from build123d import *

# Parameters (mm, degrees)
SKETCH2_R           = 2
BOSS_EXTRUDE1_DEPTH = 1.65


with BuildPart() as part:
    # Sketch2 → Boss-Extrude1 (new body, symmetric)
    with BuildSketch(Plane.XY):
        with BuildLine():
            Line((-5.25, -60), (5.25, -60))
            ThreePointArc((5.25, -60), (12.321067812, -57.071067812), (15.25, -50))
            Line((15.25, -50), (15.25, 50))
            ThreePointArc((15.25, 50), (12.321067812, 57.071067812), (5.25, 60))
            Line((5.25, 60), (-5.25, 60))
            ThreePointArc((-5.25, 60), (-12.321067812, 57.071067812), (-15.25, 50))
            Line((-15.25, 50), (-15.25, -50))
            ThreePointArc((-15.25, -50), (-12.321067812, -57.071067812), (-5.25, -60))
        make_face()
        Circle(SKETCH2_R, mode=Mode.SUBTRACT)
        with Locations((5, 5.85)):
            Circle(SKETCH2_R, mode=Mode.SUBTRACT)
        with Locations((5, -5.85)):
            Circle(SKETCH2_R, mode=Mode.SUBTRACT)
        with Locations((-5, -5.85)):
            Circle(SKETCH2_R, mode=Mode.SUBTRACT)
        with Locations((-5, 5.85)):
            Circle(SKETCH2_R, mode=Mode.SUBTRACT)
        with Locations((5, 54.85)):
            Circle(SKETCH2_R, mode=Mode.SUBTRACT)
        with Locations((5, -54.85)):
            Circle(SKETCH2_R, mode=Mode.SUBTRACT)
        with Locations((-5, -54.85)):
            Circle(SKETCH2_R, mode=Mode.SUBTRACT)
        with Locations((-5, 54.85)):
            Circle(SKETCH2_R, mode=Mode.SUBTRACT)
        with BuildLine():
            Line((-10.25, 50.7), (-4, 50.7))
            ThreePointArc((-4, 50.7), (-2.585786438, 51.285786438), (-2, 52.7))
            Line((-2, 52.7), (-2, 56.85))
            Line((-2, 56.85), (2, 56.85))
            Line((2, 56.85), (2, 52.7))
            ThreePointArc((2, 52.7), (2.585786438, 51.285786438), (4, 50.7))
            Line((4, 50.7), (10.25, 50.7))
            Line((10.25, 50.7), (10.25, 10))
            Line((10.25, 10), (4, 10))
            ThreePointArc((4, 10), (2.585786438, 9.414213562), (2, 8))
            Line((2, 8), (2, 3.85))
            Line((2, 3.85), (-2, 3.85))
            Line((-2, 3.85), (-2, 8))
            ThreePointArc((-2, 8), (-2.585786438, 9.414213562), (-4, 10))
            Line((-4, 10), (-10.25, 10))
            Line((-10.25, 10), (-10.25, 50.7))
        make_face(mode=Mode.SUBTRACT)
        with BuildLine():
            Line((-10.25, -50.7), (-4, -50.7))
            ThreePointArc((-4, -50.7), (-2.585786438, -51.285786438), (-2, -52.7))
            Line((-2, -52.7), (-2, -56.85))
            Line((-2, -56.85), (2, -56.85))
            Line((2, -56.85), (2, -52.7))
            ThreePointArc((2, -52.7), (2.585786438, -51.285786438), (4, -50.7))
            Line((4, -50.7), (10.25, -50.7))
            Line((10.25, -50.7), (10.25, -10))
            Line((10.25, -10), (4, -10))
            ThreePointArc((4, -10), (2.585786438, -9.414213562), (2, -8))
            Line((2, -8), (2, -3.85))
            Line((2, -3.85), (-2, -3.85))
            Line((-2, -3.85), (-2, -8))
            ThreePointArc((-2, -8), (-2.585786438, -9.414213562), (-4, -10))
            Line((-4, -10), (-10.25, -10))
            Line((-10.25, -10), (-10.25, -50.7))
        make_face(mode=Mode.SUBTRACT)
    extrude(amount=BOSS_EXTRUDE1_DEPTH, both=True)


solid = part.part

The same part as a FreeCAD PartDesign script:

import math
import FreeCAD as App
import Part
import Sketcher

V = App.Vector

doc = App.newDocument("Part")
params = doc.addObject("Spreadsheet::Sheet", "Params")
for row, (alias, value) in enumerate([
    ("sketch1_diameter", "4 mm"),
    ("sketch1_radius", "10 mm"),
    ("sketch1_width", "4 mm"),
    ("sketch1_height", "100 mm"),
    ("sketch1_width2", "10.5 mm"),
    ("pad1_length", "3.3 mm"),
], start=1):
    params.set(f"A{row}", alias)
    params.set(f"B{row}", "=" + value)
    params.setAlias(f"B{row}", alias)

body = doc.addObject("PartDesign::Body", "Body")

# Sketch on XY plane
sketch1 = body.newObject("Sketcher::SketchObject", "Sketch")
sketch1.AttachmentSupport = (doc.getObject("XY_Plane"), [""])
sketch1.MapMode = "FlatFace"
sketch1.addGeometry(Part.LineSegment(V(-5.25, -60, 0), V(5.25, -60, 0)), False)
sketch1.addGeometry(Part.ArcOfCircle(Part.Circle(V(5.25, -50, 0), V(0, 0, 1), 10), math.radians(-90), math.radians(0)), False)
sketch1.addGeometry(Part.LineSegment(V(15.25, -50, 0), V(15.25, 50, 0)), False)
sketch1.addGeometry(Part.ArcOfCircle(Part.Circle(V(5.25, 50, 0), V(0, 0, 1), 10), math.radians(0), math.radians(90)), False)
sketch1.addGeometry(Part.LineSegment(V(5.25, 60, 0), V(-5.25, 60, 0)), False)
sketch1.addGeometry(Part.ArcOfCircle(Part.Circle(V(-5.25, 50, 0), V(0, 0, 1), 10), math.radians(90), math.radians(180)), False)
sketch1.addGeometry(Part.LineSegment(V(-15.25, 50, 0), V(-15.25, -50, 0)), False)
sketch1.addGeometry(Part.ArcOfCircle(Part.Circle(V(-5.25, -50, 0), V(0, 0, 1), 10), math.radians(180), math.radians(270)), False)
sketch1.addGeometry(Part.Circle(V(-5, -54.85, 0), V(0, 0, 1), 2), False)
sketch1.addGeometry(Part.Circle(V(-5, -5.85, 0), V(0, 0, 1), 2), False)
sketch1.addGeometry(Part.Circle(V(5, -54.85, 0), V(0, 0, 1), 2), False)
sketch1.addGeometry(Part.LineSegment(V(-4, -50.7, 0), V(-10.25, -50.7, 0)), False)
sketch1.addGeometry(Part.LineSegment(V(-10.25, -50.7, 0), V(-10.25, -10, 0)), False)
sketch1.addGeometry(Part.LineSegment(V(-10.25, -10, 0), V(-4, -10, 0)), False)
sketch1.addGeometry(Part.ArcOfCircle(Part.Circle(V(-4, -8, 0), V(0, 0, 1), 2), math.radians(-90), math.radians(0)), False)
sketch1.addGeometry(Part.LineSegment(V(-2, -8, 0), V(-2, -3.85, 0)), False)
sketch1.addGeometry(Part.LineSegment(V(-2, -3.85, 0), V(2, -3.85, 0)), False)
sketch1.addGeometry(Part.LineSegment(V(2, -3.85, 0), V(2, -8, 0)), False)
sketch1.addGeometry(Part.ArcOfCircle(Part.Circle(V(4, -8, 0), V(0, 0, 1), 2), math.radians(-180), math.radians(-90)), False)
sketch1.addGeometry(Part.LineSegment(V(4, -10, 0), V(10.25, -10, 0)), False)
sketch1.addGeometry(Part.LineSegment(V(10.25, -10, 0), V(10.25, -50.7, 0)), False)
sketch1.addGeometry(Part.LineSegment(V(10.25, -50.7, 0), V(4, -50.7, 0)), False)
sketch1.addGeometry(Part.ArcOfCircle(Part.Circle(V(4, -52.7, 0), V(0, 0, 1), 2), math.radians(90), math.radians(180)), False)
sketch1.addGeometry(Part.LineSegment(V(2, -52.7, 0), V(2, -56.85, 0)), False)
sketch1.addGeometry(Part.LineSegment(V(2, -56.85, 0), V(-2, -56.85, 0)), False)
sketch1.addGeometry(Part.LineSegment(V(-2, -56.85, 0), V(-2, -52.7, 0)), False)
sketch1.addGeometry(Part.ArcOfCircle(Part.Circle(V(-4, -52.7, 0), V(0, 0, 1), 2), math.radians(0), math.radians(90)), False)
sketch1.addGeometry(Part.Circle(V(0, 0, 0), V(0, 0, 1), 2), False)
sketch1.addGeometry(Part.Circle(V(5, -5.85, 0), V(0, 0, 1), 2), False)
sketch1.addGeometry(Part.Circle(V(-5, 5.85, 0), V(0, 0, 1), 2), False)
sketch1.addGeometry(Part.Circle(V(-5, 54.85, 0), V(0, 0, 1), 2), False)
sketch1.addGeometry(Part.Circle(V(5, 5.85, 0), V(0, 0, 1), 2), False)
sketch1.addGeometry(Part.LineSegment(V(-10.25, 10, 0), V(-10.25, 50.7, 0)), False)
sketch1.addGeometry(Part.LineSegment(V(-10.25, 50.7, 0), V(-4, 50.7, 0)), False)
sketch1.addGeometry(Part.ArcOfCircle(Part.Circle(V(-4, 52.7, 0), V(0, 0, 1), 2), math.radians(-90), math.radians(0)), False)
sketch1.addGeometry(Part.LineSegment(V(-2, 52.7, 0), V(-2, 56.85, 0)), False)
sketch1.addGeometry(Part.LineSegment(V(-2, 56.85, 0), V(2, 56.85, 0)), False)
sketch1.addGeometry(Part.LineSegment(V(2, 56.85, 0), V(2, 52.7, 0)), False)
sketch1.addGeometry(Part.ArcOfCircle(Part.Circle(V(4, 52.7, 0), V(0, 0, 1), 2), math.radians(-180), math.radians(-90)), False)
sketch1.addGeometry(Part.LineSegment(V(4, 50.7, 0), V(10.25, 50.7, 0)), False)
sketch1.addGeometry(Part.LineSegment(V(10.25, 50.7, 0), V(10.25, 10, 0)), False)
sketch1.addGeometry(Part.LineSegment(V(10.25, 10, 0), V(4, 10, 0)), False)
sketch1.addGeometry(Part.ArcOfCircle(Part.Circle(V(4, 8, 0), V(0, 0, 1), 2), math.radians(90), math.radians(180)), False)
sketch1.addGeometry(Part.LineSegment(V(2, 8, 0), V(2, 3.85, 0)), False)
sketch1.addGeometry(Part.LineSegment(V(2, 3.85, 0), V(-2, 3.85, 0)), False)
sketch1.addGeometry(Part.LineSegment(V(-2, 3.85, 0), V(-2, 8, 0)), False)
sketch1.addGeometry(Part.ArcOfCircle(Part.Circle(V(-4, 8, 0), V(0, 0, 1), 2), math.radians(0), math.radians(90)), False)
sketch1.addGeometry(Part.LineSegment(V(-4, 10, 0), V(-10.25, 10, 0)), False)
sketch1.addGeometry(Part.Circle(V(5, 54.85, 0), V(0, 0, 1), 2), False)
sketch1.addConstraint(Sketcher.Constraint("Tangent", 0, 2, 1, 1))
sketch1.addConstraint(Sketcher.Constraint("Tangent", 1, 2, 2, 1))
sketch1.addConstraint(Sketcher.Constraint("Tangent", 2, 2, 3, 1))
sketch1.addConstraint(Sketcher.Constraint("Tangent", 3, 2, 4, 1))
sketch1.addConstraint(Sketcher.Constraint("Tangent", 4, 2, 5, 1))
sketch1.addConstraint(Sketcher.Constraint("Tangent", 5, 2, 6, 1))
sketch1.addConstraint(Sketcher.Constraint("Tangent", 6, 2, 7, 1))
sketch1.addConstraint(Sketcher.Constraint("Tangent", 7, 2, 0, 1))
sketch1.addConstraint(Sketcher.Constraint("Coincident", 11, 2, 12, 1))
sketch1.addConstraint(Sketcher.Constraint("Coincident", 12, 2, 13, 1))
sketch1.addConstraint(Sketcher.Constraint("Tangent", 13, 2, 14, 1))
sketch1.addConstraint(Sketcher.Constraint("Tangent", 14, 2, 15, 1))
sketch1.addConstraint(Sketcher.Constraint("Coincident", 15, 2, 16, 1))
sketch1.addConstraint(Sketcher.Constraint("Coincident", 16, 2, 17, 1))
sketch1.addConstraint(Sketcher.Constraint("Tangent", 17, 2, 18, 1))
sketch1.addConstraint(Sketcher.Constraint("Tangent", 18, 2, 19, 1))
sketch1.addConstraint(Sketcher.Constraint("Coincident", 19, 2, 20, 1))
sketch1.addConstraint(Sketcher.Constraint("Coincident", 20, 2, 21, 1))
sketch1.addConstraint(Sketcher.Constraint("Tangent", 21, 2, 22, 1))
sketch1.addConstraint(Sketcher.Constraint("Tangent", 22, 2, 23, 1))
sketch1.addConstraint(Sketcher.Constraint("Coincident", 23, 2, 24, 1))
sketch1.addConstraint(Sketcher.Constraint("Coincident", 24, 2, 25, 1))
sketch1.addConstraint(Sketcher.Constraint("Tangent", 25, 2, 26, 1))
sketch1.addConstraint(Sketcher.Constraint("Tangent", 26, 2, 11, 1))
sketch1.addConstraint(Sketcher.Constraint("Coincident", 32, 2, 33, 1))
sketch1.addConstraint(Sketcher.Constraint("Tangent", 33, 2, 34, 1))
sketch1.addConstraint(Sketcher.Constraint("Tangent", 34, 2, 35, 1))
sketch1.addConstraint(Sketcher.Constraint("Coincident", 35, 2, 36, 1))
sketch1.addConstraint(Sketcher.Constraint("Coincident", 36, 2, 37, 1))
sketch1.addConstraint(Sketcher.Constraint("Tangent", 37, 2, 38, 1))
sketch1.addConstraint(Sketcher.Constraint("Tangent", 38, 2, 39, 1))
sketch1.addConstraint(Sketcher.Constraint("Coincident", 39, 2, 40, 1))
sketch1.addConstraint(Sketcher.Constraint("Coincident", 40, 2, 41, 1))
sketch1.addConstraint(Sketcher.Constraint("Tangent", 41, 2, 42, 1))
sketch1.addConstraint(Sketcher.Constraint("Tangent", 42, 2, 43, 1))
sketch1.addConstraint(Sketcher.Constraint("Coincident", 43, 2, 44, 1))
sketch1.addConstraint(Sketcher.Constraint("Coincident", 44, 2, 45, 1))
sketch1.addConstraint(Sketcher.Constraint("Tangent", 45, 2, 46, 1))
sketch1.addConstraint(Sketcher.Constraint("Tangent", 46, 2, 47, 1))
sketch1.addConstraint(Sketcher.Constraint("Coincident", 47, 2, 32, 1))
sketch1.addConstraint(Sketcher.Constraint("Horizontal", 0))
sketch1.addConstraint(Sketcher.Constraint("Vertical", 2))
sketch1.addConstraint(Sketcher.Constraint("Horizontal", 4))
sketch1.addConstraint(Sketcher.Constraint("Vertical", 6))
sketch1.addConstraint(Sketcher.Constraint("Horizontal", 11))
sketch1.addConstraint(Sketcher.Constraint("Vertical", 12))
sketch1.addConstraint(Sketcher.Constraint("Horizontal", 13))
sketch1.addConstraint(Sketcher.Constraint("Vertical", 15))
sketch1.addConstraint(Sketcher.Constraint("Horizontal", 16))
sketch1.addConstraint(Sketcher.Constraint("Vertical", 17))
sketch1.addConstraint(Sketcher.Constraint("Horizontal", 19))
sketch1.addConstraint(Sketcher.Constraint("Vertical", 20))
sketch1.addConstraint(Sketcher.Constraint("Horizontal", 21))
sketch1.addConstraint(Sketcher.Constraint("Vertical", 23))
sketch1.addConstraint(Sketcher.Constraint("Horizontal", 24))
sketch1.addConstraint(Sketcher.Constraint("Vertical", 25))
sketch1.addConstraint(Sketcher.Constraint("Vertical", 32))
sketch1.addConstraint(Sketcher.Constraint("Horizontal", 33))
sketch1.addConstraint(Sketcher.Constraint("Vertical", 35))
sketch1.addConstraint(Sketcher.Constraint("Horizontal", 36))
sketch1.addConstraint(Sketcher.Constraint("Vertical", 37))
sketch1.addConstraint(Sketcher.Constraint("Horizontal", 39))
sketch1.addConstraint(Sketcher.Constraint("Vertical", 40))
sketch1.addConstraint(Sketcher.Constraint("Horizontal", 41))
sketch1.addConstraint(Sketcher.Constraint("Vertical", 43))
sketch1.addConstraint(Sketcher.Constraint("Horizontal", 44))
sketch1.addConstraint(Sketcher.Constraint("Vertical", 45))
sketch1.addConstraint(Sketcher.Constraint("Horizontal", 47))
sketch1.addConstraint(Sketcher.Constraint("Coincident", 27, 3, -1, 1))
sketch1.addConstraint(Sketcher.Constraint("Equal", 1, 3))
sketch1.addConstraint(Sketcher.Constraint("Equal", 3, 5))
sketch1.addConstraint(Sketcher.Constraint("Equal", 5, 7))
sketch1.addConstraint(Sketcher.Constraint("Equal", 8, 9))
sketch1.addConstraint(Sketcher.Constraint("Equal", 9, 10))
sketch1.addConstraint(Sketcher.Constraint("Equal", 10, 14))
sketch1.addConstraint(Sketcher.Constraint("Equal", 14, 18))
sketch1.addConstraint(Sketcher.Constraint("Equal", 18, 22))
sketch1.addConstraint(Sketcher.Constraint("Equal", 22, 26))
sketch1.addConstraint(Sketcher.Constraint("Equal", 26, 27))
sketch1.addConstraint(Sketcher.Constraint("Equal", 27, 28))
sketch1.addConstraint(Sketcher.Constraint("Equal", 28, 29))
sketch1.addConstraint(Sketcher.Constraint("Equal", 29, 30))
sketch1.addConstraint(Sketcher.Constraint("Equal", 30, 31))
sketch1.addConstraint(Sketcher.Constraint("Equal", 31, 34))
sketch1.addConstraint(Sketcher.Constraint("Equal", 34, 38))
sketch1.addConstraint(Sketcher.Constraint("Equal", 38, 42))
sketch1.addConstraint(Sketcher.Constraint("Equal", 42, 46))
sketch1.addConstraint(Sketcher.Constraint("Equal", 46, 48))
sketch1.addConstraint(Sketcher.Constraint("Symmetric", 1, 3, 5, 3, -1, 1))
sketch1.addConstraint(Sketcher.Constraint("Symmetric", 28, 3, 29, 3, -1, 1))
sketch1.addConstraint(Sketcher.Constraint("Symmetric", 10, 3, 30, 3, -1, 1))
sketch1.addConstraint(Sketcher.Constraint("Symmetric", 9, 3, 31, 3, -1, 1))
sketch1.addConstraint(Sketcher.Constraint("Symmetric", 22, 3, 34, 3, -1, 1))
sketch1.addConstraint(Sketcher.Constraint("Symmetric", 26, 3, 38, 3, -1, 1))
sketch1.addConstraint(Sketcher.Constraint("Symmetric", 14, 3, 42, 3, -1, 1))
sketch1.addConstraint(Sketcher.Constraint("Symmetric", 18, 3, 46, 3, -1, 1))
sketch1.addConstraint(Sketcher.Constraint("Symmetric", 8, 3, 48, 3, -1, 1))
sketch1.addConstraint(Sketcher.Constraint("Symmetric", 8, 3, 10, 3, -2))
sketch1.addConstraint(Sketcher.Constraint("Symmetric", 14, 3, 18, 3, -2))
sketch1.addConstraint(Sketcher.Constraint("Symmetric", 22, 3, 26, 3, -2))
sketch1.addConstraint(Sketcher.Constraint("Symmetric", 9, 3, 28, 3, -2))
sketch1.addConstraint(Sketcher.Constraint("Vertical", 8, 3, 9, 3))
sketch1.addConstraint(Sketcher.Constraint("Vertical", 18, 3, 22, 3))
sketch1.addConstraint(Sketcher.Constraint("Vertical", 12, 2, 32, 2))
sketch1.addConstraint(Sketcher.Constraint("Vertical", 20, 2, 39, 2))
sketch1.addConstraint(Sketcher.Constraint("Equal", 13, 19))
sketch1.addConstraint(Sketcher.Constraint("Equal", 17, 23))
sketch1.addConstraint(Sketcher.Constraint("Equal", 25, 35))
sketch1.addConstraint(Sketcher.Constraint("Equal", 37, 43))
sketch1.addConstraint(Sketcher.Constraint("Diameter", 8, 4.0))
sketch1.addConstraint(Sketcher.Constraint("Radius", 1, 10.0))
sketch1.addConstraint(Sketcher.Constraint("DistanceX", 16, 1, 16, 2, 4.0))
sketch1.addConstraint(Sketcher.Constraint("DistanceY", 2, 1, 2, 2, 100.0))
sketch1.addConstraint(Sketcher.Constraint("DistanceX", 0, 1, 0, 2, 10.5))
sketch1.addConstraint(Sketcher.Constraint("DistanceY", 12, 1, 12, 2, 40.7))
sketch1.addConstraint(Sketcher.Constraint("DistanceX", 8, 3, -1, 1, 5.0))
sketch1.addConstraint(Sketcher.Constraint("DistanceY", 14, 3, -1, 1, 8.0))
sketch1.addConstraint(Sketcher.Constraint("DistanceX", 11, 2, 11, 1, 6.25))
sketch1.addConstraint(Sketcher.Constraint("DistanceY", 15, 1, 15, 2, 4.15))
sketch1.addConstraint(Sketcher.Constraint("DistanceY", 8, 3, -1, 1, 54.85))
sketch1.addConstraint(Sketcher.Constraint("DistanceY", 9, 3, -1, 1, 5.85))
sketch1.setExpression("Constraints[109]", "Params.sketch1_diameter")
sketch1.setExpression("Constraints[110]", "Params.sketch1_radius")
sketch1.setExpression("Constraints[111]", "Params.sketch1_width")
sketch1.setExpression("Constraints[112]", "Params.sketch1_height")
sketch1.setExpression("Constraints[113]", "Params.sketch1_width2")
pad1 = body.newObject("PartDesign::Pad", "Pad")
pad1.Profile = sketch1
pad1.setExpression("Length", "Params.pad1_length")
pad1.Midplane = True

doc.recompute()
